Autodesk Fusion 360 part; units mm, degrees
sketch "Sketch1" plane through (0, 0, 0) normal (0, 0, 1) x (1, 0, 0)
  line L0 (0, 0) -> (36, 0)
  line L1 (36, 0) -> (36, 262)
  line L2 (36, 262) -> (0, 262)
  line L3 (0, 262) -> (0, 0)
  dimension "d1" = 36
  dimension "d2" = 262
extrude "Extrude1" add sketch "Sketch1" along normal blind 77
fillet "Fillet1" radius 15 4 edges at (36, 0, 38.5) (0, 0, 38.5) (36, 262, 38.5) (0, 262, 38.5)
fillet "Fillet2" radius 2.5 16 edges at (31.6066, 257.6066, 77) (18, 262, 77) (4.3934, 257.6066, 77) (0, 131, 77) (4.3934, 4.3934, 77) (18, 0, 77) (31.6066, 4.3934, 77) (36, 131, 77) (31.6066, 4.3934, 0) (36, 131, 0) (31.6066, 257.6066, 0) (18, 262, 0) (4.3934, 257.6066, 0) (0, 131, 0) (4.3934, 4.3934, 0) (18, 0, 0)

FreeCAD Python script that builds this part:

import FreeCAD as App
import Part
import Sketcher


def edges_at(feature, points):
    """Names of the edges that pass closest to the given points."""
    edges = feature.Shape.Edges
    near = lambda p: min(range(len(edges)), key=lambda i: edges[i].distToShape(Part.Vertex(*p))[0])
    return sorted({f"Edge{near(p) + 1}" for p in points})

doc = App.newDocument("Part")
params = doc.addObject("Spreadsheet::Sheet", "Params")
for row, (alias, value) in enumerate([
    ("sketch1_width", "36 mm"),
    ("sketch1_height", "262 mm"),
    ("pad1_length", "77 mm"),
    ("fillet_radius", "15 mm"),
    ("fillet2_radius", "2.5 mm"),
], start=1):
    params.set(f"A{row}", alias)
    params.set(f"B{row}", "=" + value)
    params.setAlias(f"B{row}", alias)

body = doc.addObject("PartDesign::Body", "Body")

# Sketch on XY plane
sketch1 = body.newObject("Sketcher::SketchObject", "Sketch")
sketch1.AttachmentSupport = (doc.getObject("XY_Plane"), [""])
sketch1.MapMode = "FlatFace"
sketch1.addGeometry([
    Part.LineSegment(App.Vector(0, 262, 0), App.Vector(0, 0, 0)),
    Part.LineSegment(App.Vector(0, 0, 0), App.Vector(36, 0, 0)),
    Part.LineSegment(App.Vector(36, 0, 0), App.Vector(36, 262, 0)),
    Part.LineSegment(App.Vector(36, 262, 0), App.Vector(0, 262, 0)),
], False)
sketch1.addConstraint([
    Sketcher.Constraint("Coincident", 0, 2, 1, 1),
    Sketcher.Constraint("Coincident", 1, 2, 2, 1),
    Sketcher.Constraint("Coincident", 2, 2, 3, 1),
    Sketcher.Constraint("Coincident", 3, 2, 0, 1),
    Sketcher.Constraint("Vertical", 0),
    Sketcher.Constraint("Horizontal", 1),
    Sketcher.Constraint("Vertical", 2),
    Sketcher.Constraint("Horizontal", 3),
    Sketcher.Constraint("Coincident", 0, 2, -1, 1),
    Sketcher.Constraint("DistanceX", 1, 1, 1, 2, 36.0),
    Sketcher.Constraint("DistanceY", 0, 2, 0, 1, 262.0),
])
sketch1.setExpression("Constraints[9]", "Params.sketch1_width")
sketch1.setExpression("Constraints[10]", "Params.sketch1_height")
pad1 = body.newObject("PartDesign::Pad", "Pad")
pad1.Profile = sketch1
pad1.setExpression("Length", "Params.pad1_length")
doc.recompute()

fillet = body.newObject("PartDesign::Fillet", "Fillet")
fillet.Base = (pad1, edges_at(pad1, [
    (36, 0, 38.5),
    (0, 0, 38.5),
    (36, 262, 38.5),
    (0, 262, 38.5),
]))
fillet.setExpression("Radius", "Params.fillet_radius")
doc.recompute()

fillet2 = body.newObject("PartDesign::Fillet", "Fillet001")
fillet2.Base = (fillet, edges_at(fillet, [
    (31.607, 257.607, 77),
    (18, 262, 77),
    (4.393, 257.607, 77),
    (0, 131, 77),
    (4.393, 4.393, 77),
    (18, 0, 77),
    (31.607, 4.393, 77),
    (36, 131, 77),
    (31.607, 4.393, 0),
    (36, 131, 0),
    (31.607, 257.607, 0),
    (18, 262, 0),
    (4.393, 257.607, 0),
    (0, 131, 0),
    (4.393, 4.393, 0),
    (18, 0, 0),
]))
fillet2.setExpression("Radius", "Params.fillet2_radius")

doc.recompute()
